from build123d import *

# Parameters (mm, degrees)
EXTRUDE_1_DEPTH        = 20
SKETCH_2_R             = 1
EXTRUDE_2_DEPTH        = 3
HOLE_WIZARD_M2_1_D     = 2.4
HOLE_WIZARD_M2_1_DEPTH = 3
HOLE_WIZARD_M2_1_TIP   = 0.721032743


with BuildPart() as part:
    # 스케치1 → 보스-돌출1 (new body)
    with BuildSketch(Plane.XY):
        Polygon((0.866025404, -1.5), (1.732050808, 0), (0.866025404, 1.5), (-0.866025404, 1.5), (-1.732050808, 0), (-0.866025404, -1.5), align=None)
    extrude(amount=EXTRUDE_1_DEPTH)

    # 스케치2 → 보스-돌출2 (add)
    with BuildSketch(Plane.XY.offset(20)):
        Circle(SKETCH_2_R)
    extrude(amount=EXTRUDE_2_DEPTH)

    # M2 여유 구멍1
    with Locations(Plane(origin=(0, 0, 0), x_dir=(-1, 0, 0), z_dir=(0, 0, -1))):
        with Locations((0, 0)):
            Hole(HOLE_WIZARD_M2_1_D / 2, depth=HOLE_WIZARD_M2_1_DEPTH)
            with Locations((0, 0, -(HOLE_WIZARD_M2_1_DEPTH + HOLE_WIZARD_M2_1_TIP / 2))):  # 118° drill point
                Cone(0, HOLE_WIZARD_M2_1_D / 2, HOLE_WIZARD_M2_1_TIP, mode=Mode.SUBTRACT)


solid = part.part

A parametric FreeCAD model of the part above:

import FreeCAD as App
import Part
import Sketcher
Q = App.Units.Quantity


def add_polygon(sketch, points):
    """Adds a closed chain of lines whose ends are joined by coincident constraints."""
    first, n = sketch.GeometryCount, len(points)
    for a, b in zip(points, points[1:] + points[:1]):
        sketch.addGeometry(Part.LineSegment(App.Vector(*a, 0), App.Vector(*b, 0)), False)
    for i in range(n):
        sketch.addConstraint(Sketcher.Constraint("Coincident", first + i, 2, first + (i + 1) % n, 1))

doc = App.newDocument("Part")
body = doc.addObject("PartDesign::Body", "Body")

# Sketch on XY plane
sketch1 = doc.addObject("Sketcher::SketchObject", "Sketch")
body.addObject(sketch1)
sketch1.AttachmentSupport = (doc.XY_Plane, [""])
sketch1.MapMode = "FlatFace"
add_polygon(sketch1, [(0.866025, -1.5), (1.732051, 0), (0.866025, 1.5), (-0.866025, 1.5), (-1.732051, 0), (-0.866025, -1.5)])  # lines 0-5
sketch1.addConstraint([
    Sketcher.Constraint("Horizontal", 2),
    Sketcher.Constraint("Horizontal", 5),
    Sketcher.Constraint("Symmetric", 0, 2, 3, 2, -1, 1),
    Sketcher.Constraint("Symmetric", 1, 2, 4, 2, -1, 1),
    Sketcher.Constraint("PointOnObject", 0, 2, -1),
    Sketcher.Constraint("Parallel", 0, 3),
    Sketcher.Constraint("Vertical", 2, 2, 4, 2),
    Sketcher.Constraint("Angle", 0, Q("60 deg")),
    Sketcher.Constraint("DistanceY", 4, 2, 2, 2, 3.0),
    Sketcher.Constraint("DistanceX", 2, 2, 2, 1, 1.732051),
])
pad1 = doc.addObject("PartDesign::Pad", "Pad")
body.addObject(pad1)
pad1.Profile = sketch1
pad1.Length = 20

# Sketch on XY plane
sketch2 = doc.addObject("Sketcher::SketchObject", "Sketch001")
body.addObject(sketch2)
sketch2.AttachmentSupport = (doc.XY_Plane, [""])
sketch2.MapMode = "FlatFace"
sketch2.AttachmentOffset = App.Placement(App.Vector(0, 0, 20), App.Rotation())
sketch2.addGeometry(Part.Circle(App.Vector(0, 0, 0), App.Vector(0, 0, 1), 1), False)
sketch2.addConstraint([
    Sketcher.Constraint("Coincident", 0, 3, -1, 1),
    Sketcher.Constraint("Diameter", 0, 2.0),
])
pad2 = doc.addObject("PartDesign::Pad", "Pad001")
body.addObject(pad2)
pad2.Profile = sketch2
pad2.Length = 3

# Sketch on XY plane
sketch3 = doc.addObject("Sketcher::SketchObject", "Sketch002")
body.addObject(sketch3)
sketch3.AttachmentSupport = (doc.XY_Plane, [""])
sketch3.MapMode = "FlatFace"
sketch3.addGeometry(Part.Circle(App.Vector(0, 0, 0), App.Vector(0, 0, 1), 1.2), False)
sketch3.addConstraint([
    Sketcher.Constraint("Coincident", 0, 3, -1, 1),
    Sketcher.Constraint("Diameter", 0, 2.4),
])
doc.recompute()
hole = doc.addObject("PartDesign::Hole", "Hole")
body.addObject(hole)
hole.Profile = sketch3
hole.ThreadType = "None"
hole.Diameter = 2.4
hole.DepthType = "Dimension"
hole.Depth = 3
hole.DrillPoint = "Angled"
hole.DrillPointAngle = 118
hole.Reversed = True

doc.recompute()
